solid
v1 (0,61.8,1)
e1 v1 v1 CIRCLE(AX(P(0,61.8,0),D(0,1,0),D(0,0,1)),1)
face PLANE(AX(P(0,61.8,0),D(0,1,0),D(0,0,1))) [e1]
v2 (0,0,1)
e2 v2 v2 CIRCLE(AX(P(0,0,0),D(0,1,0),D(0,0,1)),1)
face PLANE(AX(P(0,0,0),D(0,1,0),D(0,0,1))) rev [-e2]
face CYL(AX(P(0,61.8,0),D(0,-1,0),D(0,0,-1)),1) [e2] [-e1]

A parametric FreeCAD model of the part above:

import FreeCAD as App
import Part
import Sketcher
from FreeCAD import Vector
Q = App.Units.Quantity

doc = App.newDocument("Part")
body = doc.addObject("PartDesign::Body", "Body")

# Sketch on XZ plane
sketch1 = doc.addObject("Sketcher::SketchObject", "Sketch")
body.addObject(sketch1)
sketch1.AttachmentSupport = (doc.XZ_Plane, [""])
sketch1.MapMode = "FlatFace"
sketch1.addGeometry(Part.Circle(Vector(0, 0, 0), Vector(0, 0, 1), 1), False)
sketch1.addConstraint([
    Sketcher.Constraint("Coincident", 0, 3, -1, 1),
    Sketcher.Constraint("Diameter", 0, Q("2 mm")),
])
pad1 = doc.addObject("PartDesign::Pad", "Pad")
body.addObject(pad1)
pad1.Profile = sketch1
pad1.Length = 61.8
pad1.Reversed = True

doc.recompute()
